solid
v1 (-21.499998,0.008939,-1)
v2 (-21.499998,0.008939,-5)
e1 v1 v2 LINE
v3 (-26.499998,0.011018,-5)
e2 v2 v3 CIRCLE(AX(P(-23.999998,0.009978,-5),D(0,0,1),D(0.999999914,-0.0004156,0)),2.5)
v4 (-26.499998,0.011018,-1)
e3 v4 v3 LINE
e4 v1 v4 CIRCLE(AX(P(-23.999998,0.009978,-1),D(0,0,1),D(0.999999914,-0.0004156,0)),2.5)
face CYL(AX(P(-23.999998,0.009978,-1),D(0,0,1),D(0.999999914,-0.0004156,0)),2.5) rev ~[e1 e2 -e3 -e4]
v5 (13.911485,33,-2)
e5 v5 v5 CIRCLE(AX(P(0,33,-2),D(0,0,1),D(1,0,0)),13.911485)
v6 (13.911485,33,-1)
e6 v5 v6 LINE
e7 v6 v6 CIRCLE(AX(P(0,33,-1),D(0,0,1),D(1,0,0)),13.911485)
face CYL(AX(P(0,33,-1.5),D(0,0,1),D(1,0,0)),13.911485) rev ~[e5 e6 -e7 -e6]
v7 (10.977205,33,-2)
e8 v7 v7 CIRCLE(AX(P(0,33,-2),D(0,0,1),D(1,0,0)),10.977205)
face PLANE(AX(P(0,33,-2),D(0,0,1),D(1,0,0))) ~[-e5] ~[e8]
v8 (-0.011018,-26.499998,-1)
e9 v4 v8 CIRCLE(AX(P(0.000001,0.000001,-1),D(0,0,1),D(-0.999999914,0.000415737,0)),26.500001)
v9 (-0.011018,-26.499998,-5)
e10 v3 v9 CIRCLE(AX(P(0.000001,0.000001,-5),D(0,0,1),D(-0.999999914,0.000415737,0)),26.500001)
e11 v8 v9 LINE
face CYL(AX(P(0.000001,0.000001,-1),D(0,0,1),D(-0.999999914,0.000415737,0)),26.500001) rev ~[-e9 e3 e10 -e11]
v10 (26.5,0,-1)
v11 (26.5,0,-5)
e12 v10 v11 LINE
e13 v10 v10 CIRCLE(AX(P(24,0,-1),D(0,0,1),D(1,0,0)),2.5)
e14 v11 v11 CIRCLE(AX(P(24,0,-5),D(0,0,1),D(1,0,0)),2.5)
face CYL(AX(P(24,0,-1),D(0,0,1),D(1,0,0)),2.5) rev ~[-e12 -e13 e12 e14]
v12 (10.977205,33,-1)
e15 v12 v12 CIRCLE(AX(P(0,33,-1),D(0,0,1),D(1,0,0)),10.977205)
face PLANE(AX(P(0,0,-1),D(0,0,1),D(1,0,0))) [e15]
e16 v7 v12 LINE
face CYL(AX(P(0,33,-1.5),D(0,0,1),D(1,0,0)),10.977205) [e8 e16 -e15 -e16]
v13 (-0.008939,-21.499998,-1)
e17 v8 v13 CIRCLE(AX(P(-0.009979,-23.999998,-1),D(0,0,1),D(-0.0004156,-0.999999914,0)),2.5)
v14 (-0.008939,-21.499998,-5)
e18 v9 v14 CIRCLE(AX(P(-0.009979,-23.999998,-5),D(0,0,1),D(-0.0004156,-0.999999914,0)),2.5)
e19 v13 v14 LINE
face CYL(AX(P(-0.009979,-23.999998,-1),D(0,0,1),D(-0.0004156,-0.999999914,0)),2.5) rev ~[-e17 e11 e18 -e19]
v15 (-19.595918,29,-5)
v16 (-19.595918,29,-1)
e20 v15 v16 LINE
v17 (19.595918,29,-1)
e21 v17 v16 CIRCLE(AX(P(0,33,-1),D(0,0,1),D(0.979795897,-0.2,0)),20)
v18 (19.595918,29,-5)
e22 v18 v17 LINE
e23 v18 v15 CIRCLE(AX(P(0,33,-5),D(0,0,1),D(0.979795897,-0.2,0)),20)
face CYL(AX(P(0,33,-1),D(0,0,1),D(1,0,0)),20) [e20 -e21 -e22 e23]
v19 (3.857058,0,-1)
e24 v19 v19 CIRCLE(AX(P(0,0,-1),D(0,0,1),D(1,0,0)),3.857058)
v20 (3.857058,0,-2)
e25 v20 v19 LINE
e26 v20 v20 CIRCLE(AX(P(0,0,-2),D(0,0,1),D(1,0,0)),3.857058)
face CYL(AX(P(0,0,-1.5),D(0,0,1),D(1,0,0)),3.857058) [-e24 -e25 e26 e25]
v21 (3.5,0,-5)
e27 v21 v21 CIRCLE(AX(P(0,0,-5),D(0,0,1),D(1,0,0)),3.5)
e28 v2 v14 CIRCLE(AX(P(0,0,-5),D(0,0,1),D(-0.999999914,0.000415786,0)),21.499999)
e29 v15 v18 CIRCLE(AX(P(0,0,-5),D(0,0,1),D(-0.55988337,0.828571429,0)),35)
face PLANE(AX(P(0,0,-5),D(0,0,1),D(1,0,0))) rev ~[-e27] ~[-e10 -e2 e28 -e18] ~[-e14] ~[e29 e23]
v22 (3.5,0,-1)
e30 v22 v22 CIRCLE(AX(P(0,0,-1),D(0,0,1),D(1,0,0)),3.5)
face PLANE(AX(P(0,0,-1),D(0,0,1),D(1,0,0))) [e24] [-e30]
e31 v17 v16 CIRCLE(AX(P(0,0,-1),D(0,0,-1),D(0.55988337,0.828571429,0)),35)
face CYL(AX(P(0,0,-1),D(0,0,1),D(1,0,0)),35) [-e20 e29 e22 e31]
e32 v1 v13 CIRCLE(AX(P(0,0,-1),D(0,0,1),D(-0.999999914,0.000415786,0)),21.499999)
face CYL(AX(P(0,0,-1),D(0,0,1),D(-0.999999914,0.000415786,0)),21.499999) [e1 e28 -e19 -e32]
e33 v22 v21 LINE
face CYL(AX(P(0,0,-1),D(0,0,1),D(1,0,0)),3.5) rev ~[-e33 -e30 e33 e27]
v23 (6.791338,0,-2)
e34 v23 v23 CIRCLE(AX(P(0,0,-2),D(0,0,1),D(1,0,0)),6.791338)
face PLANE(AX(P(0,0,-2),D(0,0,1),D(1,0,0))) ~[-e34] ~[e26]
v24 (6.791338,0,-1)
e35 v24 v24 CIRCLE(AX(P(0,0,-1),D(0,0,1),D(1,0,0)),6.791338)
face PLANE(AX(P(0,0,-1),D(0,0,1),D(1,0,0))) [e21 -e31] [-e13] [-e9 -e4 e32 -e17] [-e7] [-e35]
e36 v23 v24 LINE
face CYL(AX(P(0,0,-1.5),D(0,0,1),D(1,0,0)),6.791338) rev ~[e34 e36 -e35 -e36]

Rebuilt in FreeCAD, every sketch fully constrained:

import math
import FreeCAD as App
import Part
import Sketcher
from FreeCAD import Vector

doc = App.newDocument("Part")
params = doc.addObject("Spreadsheet::Sheet", "Params")
for row, (alias, value) in enumerate([
    ("sketch1_height", "1 mm"),
    ("revolution_angle", "360 deg"),
    ("sketch2_height", "1 mm"),
    ("revolution2_angle", "360 deg"),
    ("sketch3_diameter", "70 mm"),
    ("sketch3_diameter2", "7 mm"),
    ("sketch3_diameter3", "5 mm"),
    ("sketch3_radius", "26.500001 mm"),
    ("pad1_length", "4 mm"),
    ("sketch4_diameter", "40 mm"),
    ("pad2_length", "4 mm"),
], start=1):
    params.set(f"A{row}", alias)
    params.set(f"B{row}", "=" + value)
    params.setAlias(f"B{row}", alias)

body = doc.addObject("PartDesign::Body", "Body")

sketch1 = doc.addObject("Sketcher::SketchObject", "Sketch")
body.addObject(sketch1)
sketch1.AttachmentSupport = (doc.XZ_Plane, [""])
sketch1.MapMode = "FlatFace"
sketch1.AttachmentOffset = App.Placement(Vector(0, 0, -33), App.Rotation())
sketch1.addGeometry([
    Part.LineSegment(Vector(10.977205, -1, 0), Vector(10.977205, -2, 0)),
    Part.LineSegment(Vector(10.977205, -2, 0), Vector(13.911485, -2, 0)),
    Part.LineSegment(Vector(13.911485, -2, 0), Vector(13.911485, -1, 0)),
    Part.LineSegment(Vector(13.911485, -1, 0), Vector(10.977205, -1, 0)),
], False)
sketch1.addConstraint([
    Sketcher.Constraint("Coincident", 0, 2, 1, 1),
    Sketcher.Constraint("Coincident", 1, 2, 2, 1),
    Sketcher.Constraint("Coincident", 2, 2, 3, 1),
    Sketcher.Constraint("Coincident", 3, 2, 0, 1),
    Sketcher.Constraint("Vertical", 0),
    Sketcher.Constraint("Horizontal", 1),
    Sketcher.Constraint("Vertical", 2),
    Sketcher.Constraint("Horizontal", 3),
    Sketcher.Constraint("DistanceY", 0, 2, 0, 1, 1.0),
    Sketcher.Constraint("DistanceY", 0, 2, -1, 1, 2.0),
    Sketcher.Constraint("DistanceX", 1, 1, 1, 2, 2.93428),
    Sketcher.Constraint("DistanceX", -1, 1, 0, 2, 10.977205),
])
sketch1.setExpression("Constraints[8]", "Params.sketch1_height")
revolution = doc.addObject("PartDesign::Revolution", "Revolution")
body.addObject(revolution)
revolution.Profile = sketch1
revolution.ReferenceAxis = (sketch1, ["V_Axis"])
revolution.setExpression("Angle", "Params.revolution_angle")
body2 = doc.addObject("PartDesign::Body", "Body001")
body2.AllowCompound = True

sketch2 = doc.addObject("Sketcher::SketchObject", "Sketch001")
body2.addObject(sketch2)
sketch2.AttachmentSupport = (doc.getObject("XZ_Plane001"), [""])
sketch2.MapMode = "FlatFace"
sketch2.addGeometry([
    Part.LineSegment(Vector(3.857058, -1, 0), Vector(3.857058, -2, 0)),
    Part.LineSegment(Vector(3.857058, -2, 0), Vector(6.791338, -2, 0)),
    Part.LineSegment(Vector(6.791338, -2, 0), Vector(6.791338, -1, 0)),
    Part.LineSegment(Vector(6.791338, -1, 0), Vector(3.857058, -1, 0)),
], False)
sketch2.addConstraint([
    Sketcher.Constraint("Coincident", 0, 2, 1, 1),
    Sketcher.Constraint("Coincident", 1, 2, 2, 1),
    Sketcher.Constraint("Coincident", 2, 2, 3, 1),
    Sketcher.Constraint("Coincident", 3, 2, 0, 1),
    Sketcher.Constraint("Vertical", 0),
    Sketcher.Constraint("Horizontal", 1),
    Sketcher.Constraint("Vertical", 2),
    Sketcher.Constraint("Horizontal", 3),
    Sketcher.Constraint("DistanceY", 0, 2, 0, 1, 1.0),
    Sketcher.Constraint("DistanceY", 0, 2, -1, 1, 2.0),
    Sketcher.Constraint("DistanceX", 1, 1, 1, 2, 2.93428),
    Sketcher.Constraint("DistanceX", -1, 1, 0, 2, 3.857058),
])
sketch2.setExpression("Constraints[8]", "Params.sketch2_height")
revolution2 = doc.addObject("PartDesign::Revolution", "Revolution001")
body2.addObject(revolution2)
revolution2.Profile = sketch2
revolution2.ReferenceAxis = (sketch2, ["V_Axis"])
revolution2.setExpression("Angle", "Params.revolution2_angle")
doc.recompute()

boolean = doc.addObject("PartDesign::Boolean", "Boolean")
body2.addObject(boolean)
boolean.Type = "Fuse"
boolean.addObjects([body])
body3 = doc.addObject("PartDesign::Body", "Body002")

sketch3 = doc.addObject("Sketcher::SketchObject", "Sketch002")
body3.addObject(sketch3)
sketch3.AttachmentSupport = (doc.getObject("XY_Plane002"), [""])
sketch3.MapMode = "FlatFace"
sketch3.AttachmentOffset = App.Placement(Vector(0, 0, -1), App.Rotation())
sketch3.addGeometry([
    Part.Circle(Vector(0, 0, 0), Vector(0, 0, 1), 35),
    Part.ArcOfCircle(Part.Circle(Vector(0.000001, 0.000001, 0), Vector(0, 0, 1), 26.500001), math.radians(179.97618), math.radians(269.976176)),
    Part.ArcOfCircle(Part.Circle(Vector(-23.999998, 0.009978, 0), Vector(0, 0, 1), 2.5), math.radians(-0.023812), math.radians(179.976165)),
    Part.ArcOfCircle(Part.Circle(Vector(0, 0, 0), Vector(0, 0, 1), 21.499999), math.radians(179.976177), math.radians(269.976179)),
    Part.ArcOfCircle(Part.Circle(Vector(-0.009979, -23.999998, 0), Vector(0, 0, 1), 2.5), math.radians(-90.023812), math.radians(89.976165)),
    Part.Circle(Vector(0, 0, 0), Vector(0, 0, 1), 3.5),
    Part.Circle(Vector(24, 0, 0), Vector(0, 0, 1), 2.5),
], False)
sketch3.addConstraint([
    Sketcher.Constraint("Tangent", 1, 1, 2, 2),
    Sketcher.Constraint("Tangent", 2, 1, 3, 1),
    Sketcher.Constraint("Tangent", 3, 2, 4, 2),
    Sketcher.Constraint("Tangent", 4, 1, 1, 2),
    Sketcher.Constraint("Coincident", 0, 3, -1, 1),
    Sketcher.Constraint("Coincident", 1, 3, -1, 1),
    Sketcher.Constraint("Coincident", 3, 3, -1, 1),
    Sketcher.Constraint("Coincident", 5, 3, -1, 1),
    Sketcher.Constraint("Equal", 4, 6),
    Sketcher.Constraint("PointOnObject", 6, 3, -1),
    Sketcher.Constraint("Diameter", 0, 70.0),
    Sketcher.Constraint("Diameter", 5, 7.0),
    Sketcher.Constraint("Diameter", 6, 5.0),
    Sketcher.Constraint("Radius", 1, 26.500001),
    Sketcher.Constraint("DistanceX", -1, 1, 6, 3, 24.0),
    Sketcher.Constraint("DistanceY", -1, 1, 2, 3, 0.009978),
    Sketcher.Constraint("DistanceX", 4, 3, -1, 1, 0.009979),
])
sketch3.setExpression("Constraints[10]", "Params.sketch3_diameter")
sketch3.setExpression("Constraints[11]", "Params.sketch3_diameter2")
sketch3.setExpression("Constraints[12]", "Params.sketch3_diameter3")
sketch3.setExpression("Constraints[13]", "Params.sketch3_radius")
pad1 = doc.addObject("PartDesign::Pad", "Pad")
body3.addObject(pad1)
pad1.Profile = sketch3
pad1.setExpression("Length", "Params.pad1_length")
pad1.Reversed = True
body4 = doc.addObject("PartDesign::Body", "Body003")

sketch4 = doc.addObject("Sketcher::SketchObject", "Sketch003")
body4.addObject(sketch4)
sketch4.AttachmentSupport = (doc.getObject("XY_Plane003"), [""])
sketch4.MapMode = "FlatFace"
sketch4.AttachmentOffset = App.Placement(Vector(0, 0, -1), App.Rotation())
sketch4.addGeometry(Part.Circle(Vector(0, 33, 0), Vector(0, 0, 1), 20), False)
sketch4.addConstraint([
    Sketcher.Constraint("PointOnObject", 0, 3, -2),
    Sketcher.Constraint("Diameter", 0, 40.0),
    Sketcher.Constraint("DistanceY", -1, 1, 0, 3, 33.0),
])
sketch4.setExpression("Constraints[1]", "Params.sketch4_diameter")
pad2 = doc.addObject("PartDesign::Pad", "Pad001")
body4.addObject(pad2)
pad2.Profile = sketch4
pad2.setExpression("Length", "Params.pad2_length")
pad2.Reversed = True
doc.recompute()

boolean2 = doc.addObject("PartDesign::Boolean", "Boolean001")
body4.addObject(boolean2)
boolean2.Type = "Fuse"
boolean2.addObjects([body3])
doc.recompute()

boolean3 = doc.addObject("PartDesign::Boolean", "Boolean002")
body4.addObject(boolean3)
boolean3.Type = "Cut"
boolean3.addObjects([body2])

doc.recompute()
